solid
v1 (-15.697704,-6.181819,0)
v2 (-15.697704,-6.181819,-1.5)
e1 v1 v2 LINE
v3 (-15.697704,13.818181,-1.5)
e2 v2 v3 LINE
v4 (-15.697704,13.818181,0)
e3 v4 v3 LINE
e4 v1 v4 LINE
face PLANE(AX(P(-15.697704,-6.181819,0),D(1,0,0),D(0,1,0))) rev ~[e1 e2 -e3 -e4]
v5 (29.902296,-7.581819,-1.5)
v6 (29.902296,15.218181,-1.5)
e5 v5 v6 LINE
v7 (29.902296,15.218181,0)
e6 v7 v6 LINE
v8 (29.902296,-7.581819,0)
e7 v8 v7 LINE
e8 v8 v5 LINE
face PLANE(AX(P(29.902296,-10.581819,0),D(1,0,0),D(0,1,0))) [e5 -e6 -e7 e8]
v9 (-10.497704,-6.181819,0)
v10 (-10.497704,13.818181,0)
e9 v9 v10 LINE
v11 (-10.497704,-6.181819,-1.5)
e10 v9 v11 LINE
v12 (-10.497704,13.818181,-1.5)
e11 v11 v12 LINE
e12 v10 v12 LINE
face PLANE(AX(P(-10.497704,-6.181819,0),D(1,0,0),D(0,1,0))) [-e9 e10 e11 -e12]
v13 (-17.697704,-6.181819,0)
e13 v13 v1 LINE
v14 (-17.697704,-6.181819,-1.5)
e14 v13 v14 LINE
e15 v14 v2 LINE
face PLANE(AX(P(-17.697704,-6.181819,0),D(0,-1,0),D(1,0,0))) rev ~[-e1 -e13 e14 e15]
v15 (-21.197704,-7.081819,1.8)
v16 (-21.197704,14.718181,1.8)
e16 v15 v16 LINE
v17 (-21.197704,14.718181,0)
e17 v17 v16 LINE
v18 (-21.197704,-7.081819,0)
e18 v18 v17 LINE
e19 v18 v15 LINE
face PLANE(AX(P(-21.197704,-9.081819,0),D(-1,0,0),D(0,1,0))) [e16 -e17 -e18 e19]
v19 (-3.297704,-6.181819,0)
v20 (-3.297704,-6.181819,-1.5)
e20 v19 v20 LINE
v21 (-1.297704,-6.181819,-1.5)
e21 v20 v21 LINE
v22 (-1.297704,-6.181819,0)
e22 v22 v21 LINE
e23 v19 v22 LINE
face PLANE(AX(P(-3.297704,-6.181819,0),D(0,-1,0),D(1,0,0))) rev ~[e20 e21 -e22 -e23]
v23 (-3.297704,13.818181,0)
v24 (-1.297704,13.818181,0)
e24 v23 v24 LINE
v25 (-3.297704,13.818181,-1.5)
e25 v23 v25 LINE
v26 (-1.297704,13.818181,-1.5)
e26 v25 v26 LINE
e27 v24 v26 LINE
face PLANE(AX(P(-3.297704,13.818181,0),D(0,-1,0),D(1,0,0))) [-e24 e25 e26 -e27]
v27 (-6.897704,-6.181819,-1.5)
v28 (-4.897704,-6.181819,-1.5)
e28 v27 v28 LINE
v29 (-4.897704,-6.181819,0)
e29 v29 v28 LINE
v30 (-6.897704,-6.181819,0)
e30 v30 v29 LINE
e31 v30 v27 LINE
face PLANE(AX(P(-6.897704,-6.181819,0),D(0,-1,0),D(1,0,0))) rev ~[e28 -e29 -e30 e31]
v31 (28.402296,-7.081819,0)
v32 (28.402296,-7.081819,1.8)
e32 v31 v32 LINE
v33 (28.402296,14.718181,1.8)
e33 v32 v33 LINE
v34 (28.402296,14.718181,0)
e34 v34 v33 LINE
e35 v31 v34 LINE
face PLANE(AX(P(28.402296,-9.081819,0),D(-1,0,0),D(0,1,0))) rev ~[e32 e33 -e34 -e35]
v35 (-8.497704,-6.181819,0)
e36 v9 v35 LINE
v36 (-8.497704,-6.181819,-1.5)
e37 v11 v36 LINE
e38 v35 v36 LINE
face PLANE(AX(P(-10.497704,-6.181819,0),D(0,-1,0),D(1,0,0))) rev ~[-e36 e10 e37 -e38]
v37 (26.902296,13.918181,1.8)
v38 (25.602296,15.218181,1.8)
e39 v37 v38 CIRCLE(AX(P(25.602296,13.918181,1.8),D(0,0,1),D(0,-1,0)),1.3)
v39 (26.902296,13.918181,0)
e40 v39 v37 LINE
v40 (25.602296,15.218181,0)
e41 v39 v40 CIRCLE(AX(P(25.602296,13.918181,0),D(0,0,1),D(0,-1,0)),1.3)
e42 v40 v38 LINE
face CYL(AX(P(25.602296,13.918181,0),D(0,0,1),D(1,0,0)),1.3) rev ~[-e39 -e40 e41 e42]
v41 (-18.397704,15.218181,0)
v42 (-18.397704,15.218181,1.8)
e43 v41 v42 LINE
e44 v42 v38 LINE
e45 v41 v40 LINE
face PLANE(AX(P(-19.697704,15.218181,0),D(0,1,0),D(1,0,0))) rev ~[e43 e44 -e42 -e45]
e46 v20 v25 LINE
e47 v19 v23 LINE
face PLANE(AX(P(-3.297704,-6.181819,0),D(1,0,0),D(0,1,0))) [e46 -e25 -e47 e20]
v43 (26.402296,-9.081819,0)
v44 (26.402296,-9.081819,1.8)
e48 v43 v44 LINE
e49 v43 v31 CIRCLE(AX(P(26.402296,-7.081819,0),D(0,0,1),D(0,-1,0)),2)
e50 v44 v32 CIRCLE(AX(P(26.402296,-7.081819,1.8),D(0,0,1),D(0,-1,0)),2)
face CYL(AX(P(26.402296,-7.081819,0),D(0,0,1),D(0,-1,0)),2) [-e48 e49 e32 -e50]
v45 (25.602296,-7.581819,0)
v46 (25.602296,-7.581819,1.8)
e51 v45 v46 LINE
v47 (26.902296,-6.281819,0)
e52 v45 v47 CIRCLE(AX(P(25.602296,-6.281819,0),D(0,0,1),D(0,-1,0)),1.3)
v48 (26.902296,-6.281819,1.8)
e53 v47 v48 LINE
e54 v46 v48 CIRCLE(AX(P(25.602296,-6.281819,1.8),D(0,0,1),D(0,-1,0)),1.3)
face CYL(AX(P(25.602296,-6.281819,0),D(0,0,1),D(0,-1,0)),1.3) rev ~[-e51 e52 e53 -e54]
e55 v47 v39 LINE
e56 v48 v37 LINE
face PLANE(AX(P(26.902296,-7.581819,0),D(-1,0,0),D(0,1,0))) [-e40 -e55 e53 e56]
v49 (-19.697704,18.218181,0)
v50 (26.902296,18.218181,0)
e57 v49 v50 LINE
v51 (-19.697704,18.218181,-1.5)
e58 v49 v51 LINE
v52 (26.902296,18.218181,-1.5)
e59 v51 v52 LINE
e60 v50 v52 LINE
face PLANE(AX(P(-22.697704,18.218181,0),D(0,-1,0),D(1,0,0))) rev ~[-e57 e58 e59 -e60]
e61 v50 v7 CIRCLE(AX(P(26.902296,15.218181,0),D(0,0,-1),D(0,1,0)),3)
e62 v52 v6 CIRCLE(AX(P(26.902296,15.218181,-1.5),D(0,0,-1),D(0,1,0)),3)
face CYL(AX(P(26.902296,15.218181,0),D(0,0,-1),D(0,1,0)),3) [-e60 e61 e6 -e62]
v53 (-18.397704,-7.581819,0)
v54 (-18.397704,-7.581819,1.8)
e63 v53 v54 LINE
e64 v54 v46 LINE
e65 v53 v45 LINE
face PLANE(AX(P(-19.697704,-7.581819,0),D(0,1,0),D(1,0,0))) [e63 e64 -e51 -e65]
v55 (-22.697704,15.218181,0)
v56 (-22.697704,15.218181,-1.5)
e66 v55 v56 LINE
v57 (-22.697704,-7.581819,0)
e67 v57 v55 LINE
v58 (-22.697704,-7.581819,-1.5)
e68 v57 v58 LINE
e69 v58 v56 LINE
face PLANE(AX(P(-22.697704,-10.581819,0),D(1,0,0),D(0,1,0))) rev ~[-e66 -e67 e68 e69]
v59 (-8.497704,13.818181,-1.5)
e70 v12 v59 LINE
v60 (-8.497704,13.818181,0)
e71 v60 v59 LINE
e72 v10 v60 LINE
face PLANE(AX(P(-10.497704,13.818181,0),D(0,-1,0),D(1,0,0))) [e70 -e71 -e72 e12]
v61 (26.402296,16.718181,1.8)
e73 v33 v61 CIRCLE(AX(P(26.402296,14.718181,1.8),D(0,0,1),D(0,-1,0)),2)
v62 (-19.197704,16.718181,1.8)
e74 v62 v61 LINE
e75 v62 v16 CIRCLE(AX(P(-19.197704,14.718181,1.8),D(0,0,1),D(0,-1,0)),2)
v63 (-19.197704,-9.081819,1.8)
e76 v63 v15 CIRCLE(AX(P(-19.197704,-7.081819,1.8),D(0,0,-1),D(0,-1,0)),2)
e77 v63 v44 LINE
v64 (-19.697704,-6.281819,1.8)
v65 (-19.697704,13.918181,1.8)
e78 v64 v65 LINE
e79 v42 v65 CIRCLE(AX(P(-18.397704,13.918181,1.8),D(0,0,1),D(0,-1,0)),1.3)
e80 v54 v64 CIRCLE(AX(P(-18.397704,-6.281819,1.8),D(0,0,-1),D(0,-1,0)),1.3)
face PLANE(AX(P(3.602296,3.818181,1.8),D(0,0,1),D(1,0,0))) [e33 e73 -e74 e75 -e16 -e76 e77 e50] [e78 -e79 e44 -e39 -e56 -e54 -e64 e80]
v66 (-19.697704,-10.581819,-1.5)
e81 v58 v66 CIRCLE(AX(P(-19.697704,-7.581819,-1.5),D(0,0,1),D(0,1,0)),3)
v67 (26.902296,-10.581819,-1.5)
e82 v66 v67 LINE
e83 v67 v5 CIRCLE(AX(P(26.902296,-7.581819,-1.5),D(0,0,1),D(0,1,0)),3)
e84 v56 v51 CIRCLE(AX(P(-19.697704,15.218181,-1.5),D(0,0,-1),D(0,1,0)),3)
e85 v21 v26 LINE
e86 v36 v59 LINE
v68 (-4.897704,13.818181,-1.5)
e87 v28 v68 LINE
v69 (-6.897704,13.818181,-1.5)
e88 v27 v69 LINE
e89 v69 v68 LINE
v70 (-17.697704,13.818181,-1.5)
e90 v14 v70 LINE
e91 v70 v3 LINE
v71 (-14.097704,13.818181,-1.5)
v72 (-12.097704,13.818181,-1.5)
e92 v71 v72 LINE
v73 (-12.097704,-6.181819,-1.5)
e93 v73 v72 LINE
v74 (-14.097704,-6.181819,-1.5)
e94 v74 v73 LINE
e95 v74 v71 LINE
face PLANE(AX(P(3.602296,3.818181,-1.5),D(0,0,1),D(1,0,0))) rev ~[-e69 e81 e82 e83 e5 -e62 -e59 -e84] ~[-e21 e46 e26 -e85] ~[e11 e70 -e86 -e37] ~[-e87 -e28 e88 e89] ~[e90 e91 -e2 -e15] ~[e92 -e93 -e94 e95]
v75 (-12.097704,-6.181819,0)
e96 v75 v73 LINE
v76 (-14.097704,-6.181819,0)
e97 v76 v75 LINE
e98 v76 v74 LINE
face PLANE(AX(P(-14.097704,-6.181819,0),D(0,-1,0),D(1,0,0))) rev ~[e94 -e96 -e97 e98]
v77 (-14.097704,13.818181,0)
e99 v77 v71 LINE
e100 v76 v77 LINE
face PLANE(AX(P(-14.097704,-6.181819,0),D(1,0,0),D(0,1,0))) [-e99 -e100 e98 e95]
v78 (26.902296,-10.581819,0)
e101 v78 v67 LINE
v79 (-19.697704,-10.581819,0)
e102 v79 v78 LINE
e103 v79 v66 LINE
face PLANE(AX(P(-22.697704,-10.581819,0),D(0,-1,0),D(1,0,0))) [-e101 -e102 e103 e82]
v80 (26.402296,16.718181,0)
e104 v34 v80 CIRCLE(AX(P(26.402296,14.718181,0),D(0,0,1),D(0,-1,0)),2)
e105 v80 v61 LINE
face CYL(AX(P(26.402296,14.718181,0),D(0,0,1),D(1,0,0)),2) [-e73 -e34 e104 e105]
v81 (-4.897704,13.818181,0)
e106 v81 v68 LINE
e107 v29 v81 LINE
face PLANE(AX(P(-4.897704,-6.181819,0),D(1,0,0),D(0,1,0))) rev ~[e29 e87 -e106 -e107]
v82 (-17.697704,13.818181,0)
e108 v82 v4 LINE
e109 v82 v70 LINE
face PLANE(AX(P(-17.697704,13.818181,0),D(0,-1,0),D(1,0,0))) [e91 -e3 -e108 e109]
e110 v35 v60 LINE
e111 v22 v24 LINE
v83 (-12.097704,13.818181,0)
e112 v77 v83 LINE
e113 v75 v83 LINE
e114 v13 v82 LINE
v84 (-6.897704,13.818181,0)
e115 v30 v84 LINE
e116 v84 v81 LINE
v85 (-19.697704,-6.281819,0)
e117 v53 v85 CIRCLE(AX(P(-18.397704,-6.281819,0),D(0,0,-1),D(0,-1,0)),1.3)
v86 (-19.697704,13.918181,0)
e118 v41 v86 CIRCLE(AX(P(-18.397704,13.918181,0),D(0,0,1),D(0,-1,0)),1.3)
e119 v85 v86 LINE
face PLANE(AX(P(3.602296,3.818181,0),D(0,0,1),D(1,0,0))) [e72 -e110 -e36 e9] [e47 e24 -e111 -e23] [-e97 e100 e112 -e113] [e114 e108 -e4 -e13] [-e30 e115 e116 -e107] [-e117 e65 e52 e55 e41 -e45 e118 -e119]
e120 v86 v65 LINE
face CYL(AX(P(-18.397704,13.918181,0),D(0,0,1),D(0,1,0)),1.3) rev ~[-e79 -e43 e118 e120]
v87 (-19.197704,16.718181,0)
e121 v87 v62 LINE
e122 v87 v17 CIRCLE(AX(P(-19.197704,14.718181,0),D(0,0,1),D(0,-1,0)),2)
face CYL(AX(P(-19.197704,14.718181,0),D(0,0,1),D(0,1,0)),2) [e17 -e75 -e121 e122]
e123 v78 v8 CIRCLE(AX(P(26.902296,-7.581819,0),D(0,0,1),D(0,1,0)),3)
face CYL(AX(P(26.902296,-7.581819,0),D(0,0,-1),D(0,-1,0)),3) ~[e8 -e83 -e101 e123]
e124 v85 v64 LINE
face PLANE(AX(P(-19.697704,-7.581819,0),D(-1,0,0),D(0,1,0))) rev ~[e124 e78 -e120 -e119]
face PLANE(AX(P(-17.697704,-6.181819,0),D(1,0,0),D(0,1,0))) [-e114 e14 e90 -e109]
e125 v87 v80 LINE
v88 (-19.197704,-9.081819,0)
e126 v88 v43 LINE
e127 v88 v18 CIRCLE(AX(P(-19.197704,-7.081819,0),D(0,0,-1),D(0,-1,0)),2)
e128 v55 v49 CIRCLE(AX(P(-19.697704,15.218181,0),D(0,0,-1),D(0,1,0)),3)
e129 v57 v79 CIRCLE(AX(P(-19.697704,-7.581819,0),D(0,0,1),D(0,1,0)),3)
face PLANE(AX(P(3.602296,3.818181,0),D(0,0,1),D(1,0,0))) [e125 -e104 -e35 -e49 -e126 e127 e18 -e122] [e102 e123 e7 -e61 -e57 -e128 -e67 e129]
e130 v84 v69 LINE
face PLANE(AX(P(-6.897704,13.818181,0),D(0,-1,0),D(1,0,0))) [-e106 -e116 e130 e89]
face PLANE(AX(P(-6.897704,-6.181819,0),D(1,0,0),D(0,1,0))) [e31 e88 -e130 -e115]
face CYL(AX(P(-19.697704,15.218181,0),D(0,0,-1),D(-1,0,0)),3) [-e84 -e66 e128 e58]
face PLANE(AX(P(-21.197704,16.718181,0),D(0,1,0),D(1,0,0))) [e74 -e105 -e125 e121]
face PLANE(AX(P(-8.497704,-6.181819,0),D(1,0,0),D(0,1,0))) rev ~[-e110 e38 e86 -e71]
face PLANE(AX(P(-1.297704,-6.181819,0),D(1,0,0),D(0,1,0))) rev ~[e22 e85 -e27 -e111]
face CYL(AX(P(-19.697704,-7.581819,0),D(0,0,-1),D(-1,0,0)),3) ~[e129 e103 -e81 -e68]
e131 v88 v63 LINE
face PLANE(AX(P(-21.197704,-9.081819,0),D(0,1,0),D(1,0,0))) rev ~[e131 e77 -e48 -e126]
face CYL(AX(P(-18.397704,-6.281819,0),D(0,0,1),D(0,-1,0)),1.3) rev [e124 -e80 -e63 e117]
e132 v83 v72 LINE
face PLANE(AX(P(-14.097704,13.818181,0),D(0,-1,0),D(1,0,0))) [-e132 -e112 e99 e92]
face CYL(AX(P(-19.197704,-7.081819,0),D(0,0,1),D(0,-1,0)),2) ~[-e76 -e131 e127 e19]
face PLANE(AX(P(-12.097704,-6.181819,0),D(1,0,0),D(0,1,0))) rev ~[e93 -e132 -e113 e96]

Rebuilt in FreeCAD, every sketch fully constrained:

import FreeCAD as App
import Part
import Sketcher

V = App.Vector


def edges_at(feature, points):
    """Names of the edges that pass closest to the given points."""
    edges = feature.Shape.Edges
    near = lambda p: min(range(len(edges)), key=lambda i: edges[i].distToShape(Part.Vertex(*p))[0])
    return sorted({f"Edge{near(p) + 1}" for p in points})

doc = App.newDocument("Part")
body = doc.addObject("PartDesign::Body", "Body")

sketch1 = body.newObject("Sketcher::SketchObject", "Sketch")
sketch1.AttachmentSupport = (doc.getObject("XY_Plane"), [""])
sketch1.MapMode = "FlatFace"
sketch1.addGeometry([
    Part.LineSegment(V(-22.7, 18.2, 0), V(-22.7, -10.6, 0)),
    Part.LineSegment(V(-22.7, -10.6, 0), V(29.9, -10.6, 0)),
    Part.LineSegment(V(29.9, -10.6, 0), V(29.9, 18.2, 0)),
    Part.LineSegment(V(29.9, 18.2, 0), V(-22.7, 18.2, 0)),
    Part.LineSegment(V(-15.7, -6.2, 0), V(-17.7, -6.2, 0)),
    Part.LineSegment(V(-17.7, -6.2, 0), V(-17.7, 13.8, 0)),
    Part.LineSegment(V(-17.7, 13.8, 0), V(-15.7, 13.8, 0)),
    Part.LineSegment(V(-15.7, 13.8, 0), V(-15.7, -6.2, 0)),
    Part.LineSegment(V(-12.1, -6.2, 0), V(-14.1, -6.2, 0)),
    Part.LineSegment(V(-14.1, -6.2, 0), V(-14.1, 13.8, 0)),
    Part.LineSegment(V(-14.1, 13.8, 0), V(-12.1, 13.8, 0)),
    Part.LineSegment(V(-12.1, 13.8, 0), V(-12.1, -6.2, 0)),
    Part.LineSegment(V(-8.5, -6.2, 0), V(-10.5, -6.2, 0)),
    Part.LineSegment(V(-10.5, -6.2, 0), V(-10.5, 13.8, 0)),
    Part.LineSegment(V(-10.5, 13.8, 0), V(-8.5, 13.8, 0)),
    Part.LineSegment(V(-8.5, 13.8, 0), V(-8.5, -6.2, 0)),
    Part.LineSegment(V(-4.9, -6.2, 0), V(-6.9, -6.2, 0)),
    Part.LineSegment(V(-6.9, -6.2, 0), V(-6.9, 13.8, 0)),
    Part.LineSegment(V(-6.9, 13.8, 0), V(-4.9, 13.8, 0)),
    Part.LineSegment(V(-4.9, 13.8, 0), V(-4.9, -6.2, 0)),
    Part.LineSegment(V(-1.3, -6.2, 0), V(-3.3, -6.2, 0)),
    Part.LineSegment(V(-3.3, -6.2, 0), V(-3.3, 13.8, 0)),
    Part.LineSegment(V(-3.3, 13.8, 0), V(-1.3, 13.8, 0)),
    Part.LineSegment(V(-1.3, 13.8, 0), V(-1.3, -6.2, 0)),
], False)
sketch1.addConstraint([
    Sketcher.Constraint("Coincident", 0, 2, 1, 1),
    Sketcher.Constraint("Coincident", 1, 2, 2, 1),
    Sketcher.Constraint("Coincident", 2, 2, 3, 1),
    Sketcher.Constraint("Coincident", 3, 2, 0, 1),
    Sketcher.Constraint("Coincident", 4, 2, 5, 1),
    Sketcher.Constraint("Coincident", 5, 2, 6, 1),
    Sketcher.Constraint("Coincident", 6, 2, 7, 1),
    Sketcher.Constraint("Coincident", 7, 2, 4, 1),
    Sketcher.Constraint("Coincident", 8, 2, 9, 1),
    Sketcher.Constraint("Coincident", 9, 2, 10, 1),
    Sketcher.Constraint("Coincident", 10, 2, 11, 1),
    Sketcher.Constraint("Coincident", 11, 2, 8, 1),
    Sketcher.Constraint("Coincident", 12, 2, 13, 1),
    Sketcher.Constraint("Coincident", 13, 2, 14, 1),
    Sketcher.Constraint("Coincident", 14, 2, 15, 1),
    Sketcher.Constraint("Coincident", 15, 2, 12, 1),
    Sketcher.Constraint("Coincident", 16, 2, 17, 1),
    Sketcher.Constraint("Coincident", 17, 2, 18, 1),
    Sketcher.Constraint("Coincident", 18, 2, 19, 1),
    Sketcher.Constraint("Coincident", 19, 2, 16, 1),
    Sketcher.Constraint("Coincident", 20, 2, 21, 1),
    Sketcher.Constraint("Coincident", 21, 2, 22, 1),
    Sketcher.Constraint("Coincident", 22, 2, 23, 1),
    Sketcher.Constraint("Coincident", 23, 2, 20, 1),
    Sketcher.Constraint("Vertical", 0),
    Sketcher.Constraint("Horizontal", 1),
    Sketcher.Constraint("Vertical", 2),
    Sketcher.Constraint("Horizontal", 3),
    Sketcher.Constraint("Horizontal", 4),
    Sketcher.Constraint("Vertical", 5),
    Sketcher.Constraint("Horizontal", 6),
    Sketcher.Constraint("Vertical", 7),
    Sketcher.Constraint("Horizontal", 8),
    Sketcher.Constraint("Vertical", 9),
    Sketcher.Constraint("Horizontal", 10),
    Sketcher.Constraint("Vertical", 11),
    Sketcher.Constraint("Horizontal", 12),
    Sketcher.Constraint("Vertical", 13),
    Sketcher.Constraint("Horizontal", 14),
    Sketcher.Constraint("Vertical", 15),
    Sketcher.Constraint("Horizontal", 16),
    Sketcher.Constraint("Vertical", 17),
    Sketcher.Constraint("Horizontal", 18),
    Sketcher.Constraint("Vertical", 19),
    Sketcher.Constraint("Horizontal", 20),
    Sketcher.Constraint("Vertical", 21),
    Sketcher.Constraint("Horizontal", 22),
    Sketcher.Constraint("Vertical", 23),
    Sketcher.Constraint("Horizontal", 7, 2, 8, 2),
    Sketcher.Constraint("Horizontal", 6, 2, 9, 2),
    Sketcher.Constraint("Horizontal", 11, 2, 12, 2),
    Sketcher.Constraint("Horizontal", 10, 2, 13, 2),
    Sketcher.Constraint("Horizontal", 15, 2, 16, 2),
    Sketcher.Constraint("Horizontal", 14, 2, 17, 2),
    Sketcher.Constraint("Horizontal", 19, 2, 20, 2),
    Sketcher.Constraint("Horizontal", 18, 2, 21, 2),
    Sketcher.Constraint("Equal", 6, 8),
    Sketcher.Constraint("Equal", 10, 12),
    Sketcher.Constraint("Equal", 14, 16),
    Sketcher.Constraint("Equal", 18, 20),
    Sketcher.Constraint("DistanceX", 4, 2, 4, 1, 2.0),
    Sketcher.Constraint("DistanceY", 5, 1, 5, 2, 20.0),
    Sketcher.Constraint("DistanceX", 1, 1, 1, 2, 52.6),
    Sketcher.Constraint("DistanceY", 0, 2, 0, 1, 28.8),
    Sketcher.Constraint("DistanceX", 0, 2, 4, 2, 5.0),
    Sketcher.Constraint("DistanceY", 0, 2, 4, 2, 4.4),
    Sketcher.Constraint("DistanceX", 7, 2, 8, 2, 1.6),
    Sketcher.Constraint("DistanceX", 11, 2, 12, 2, 1.6),
    Sketcher.Constraint("DistanceX", 15, 2, 16, 2, 1.6),
    Sketcher.Constraint("DistanceX", 19, 2, 20, 2, 1.6),
    Sketcher.Constraint("DistanceY", 0, 2, -1, 1, 10.581819),
    Sketcher.Constraint("DistanceX", 0, 2, -1, 1, 22.697704),
])
pad1 = body.newObject("PartDesign::Pad", "Pad")
pad1.Profile = sketch1
pad1.Length = 1.5
pad1.Reversed = True
doc.recompute()

fillet = body.newObject("PartDesign::Fillet", "Fillet")
fillet.Base = (pad1, edges_at(pad1, [
    (-22.698, 18.218, -0.75),
    (29.902, 18.218, -0.75),
    (29.902, -10.582, -0.75),
    (-22.698, -10.582, -0.75),
]))
fillet.Radius = 3

sketch2 = body.newObject("Sketcher::SketchObject", "Sketch001")
sketch2.AttachmentSupport = (doc.getObject("XY_Plane"), [""])
sketch2.MapMode = "FlatFace"
sketch2.addGeometry([
    Part.LineSegment(V(-21, 17, 0), V(-21, -9, 0)),
    Part.LineSegment(V(-21, -9, 0), V(28, -9, 0)),
    Part.LineSegment(V(28, -9, 0), V(28, 17, 0)),
    Part.LineSegment(V(28, 17, 0), V(-21, 17, 0)),
    Part.LineSegment(V(27, -8, 0), V(-20, -8, 0)),
    Part.LineSegment(V(-20, -8, 0), V(-20, 15, 0)),
    Part.LineSegment(V(-20, 15, 0), V(27, 15, 0)),
    Part.LineSegment(V(27, 15, 0), V(27, -8, 0)),
], False)
sketch2.addConstraint([
    Sketcher.Constraint("Coincident", 0, 2, 1, 1),
    Sketcher.Constraint("Coincident", 1, 2, 2, 1),
    Sketcher.Constraint("Coincident", 2, 2, 3, 1),
    Sketcher.Constraint("Coincident", 3, 2, 0, 1),
    Sketcher.Constraint("Coincident", 4, 2, 5, 1),
    Sketcher.Constraint("Coincident", 5, 2, 6, 1),
    Sketcher.Constraint("Coincident", 6, 2, 7, 1),
    Sketcher.Constraint("Coincident", 7, 2, 4, 1),
    Sketcher.Constraint("Vertical", 0),
    Sketcher.Constraint("Horizontal", 1),
    Sketcher.Constraint("Vertical", 2),
    Sketcher.Constraint("Horizontal", 3),
    Sketcher.Constraint("Horizontal", 4),
    Sketcher.Constraint("Vertical", 5),
    Sketcher.Constraint("Horizontal", 6),
    Sketcher.Constraint("Vertical", 7),
    Sketcher.Constraint("DistanceX", 1, 1, 1, 2, 49.6),
    Sketcher.Constraint("DistanceX", 4, 2, 4, 1, 46.6),
    Sketcher.Constraint("DistanceY", 0, 2, 0, 1, 25.8),
    Sketcher.Constraint("DistanceY", 5, 1, 5, 2, 22.8),
    Sketcher.Constraint("DistanceX", 0, 2, 4, 2, 1.5),
    Sketcher.Constraint("DistanceY", 0, 2, 4, 2, 1.5),
    Sketcher.Constraint("DistanceY", 0, 2, -1, 1, 9.081819),
    Sketcher.Constraint("DistanceX", 0, 2, -1, 1, 21.197704),
])
pad2 = body.newObject("PartDesign::Pad", "Pad001")
pad2.Profile = sketch2
pad2.Length = 1.8
doc.recompute()

fillet2 = body.newObject("PartDesign::Fillet", "Fillet001")
fillet2.Base = (pad2, edges_at(pad2, [
    (-21.198, -9.082, 0.9),
    (-21.198, 16.718, 0.9),
    (28.402, 16.718, 0.9),
    (28.402, -9.082, 0.9),
]))
fillet2.Radius = 2
doc.recompute()

fillet3 = body.newObject("PartDesign::Fillet", "Fillet002")
fillet3.Base = (fillet2, edges_at(fillet2, [
    (-19.698, 15.218, 0.9),
    (-19.698, -7.582, 0.9),
    (26.902, -7.582, 0.9),
    (26.902, 15.218, 0.9),
]))
fillet3.Radius = 1.3

doc.recompute()
